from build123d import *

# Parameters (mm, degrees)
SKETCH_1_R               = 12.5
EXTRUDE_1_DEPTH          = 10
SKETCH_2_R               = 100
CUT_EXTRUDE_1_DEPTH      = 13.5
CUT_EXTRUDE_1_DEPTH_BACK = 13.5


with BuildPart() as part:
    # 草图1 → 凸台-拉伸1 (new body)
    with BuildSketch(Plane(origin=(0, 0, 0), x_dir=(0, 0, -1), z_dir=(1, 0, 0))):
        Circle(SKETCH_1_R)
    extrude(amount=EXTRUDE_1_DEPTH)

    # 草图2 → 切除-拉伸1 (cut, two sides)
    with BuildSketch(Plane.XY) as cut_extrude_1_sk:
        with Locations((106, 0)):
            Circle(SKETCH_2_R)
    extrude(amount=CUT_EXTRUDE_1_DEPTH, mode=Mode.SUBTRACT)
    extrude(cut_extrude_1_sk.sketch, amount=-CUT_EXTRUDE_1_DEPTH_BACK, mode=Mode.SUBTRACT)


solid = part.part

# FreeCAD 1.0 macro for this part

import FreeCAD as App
import Part
import Sketcher
Q = App.Units.Quantity

doc = App.newDocument("Part")
body = doc.addObject("PartDesign::Body", "Body")

# Sketch on YZ plane
sketch1 = body.newObject("Sketcher::SketchObject", "Sketch")
sketch1.AttachmentSupport = (doc.getObject("YZ_Plane"), [""])
sketch1.MapMode = "FlatFace"
sketch1.addGeometry(Part.Circle(App.Vector(0, 0, 0), App.Vector(0, 0, 1), 12), False)
sketch1.addConstraint(Sketcher.Constraint("Coincident", 0, 3, -1, 1))
sketch1.addConstraint(Sketcher.Constraint("Diameter", 0, Q("25 mm")))
pad1 = body.newObject("PartDesign::Pad", "Pad")
pad1.Profile = sketch1
pad1.Length = 10

# Sketch on XY plane
sketch2 = body.newObject("Sketcher::SketchObject", "Sketch001")
sketch2.AttachmentSupport = (doc.getObject("XY_Plane"), [""])
sketch2.MapMode = "FlatFace"
sketch2.addGeometry(Part.Circle(App.Vector(106, 0, 0), App.Vector(0, 0, 1), 100), False)
sketch2.addConstraint(Sketcher.Constraint("PointOnObject", 0, 3, -1))
sketch2.addConstraint(Sketcher.Constraint("Diameter", 0, Q("200 mm")))
sketch2.addConstraint(Sketcher.Constraint("DistanceX", -1, 1, 0, 3, Q("106 mm")))
pocket1 = body.newObject("PartDesign::Pocket", "Pocket")
pocket1.Profile = sketch2
pocket1.Type = "ThroughAll"
pocket1.Midplane = True

doc.recompute()
